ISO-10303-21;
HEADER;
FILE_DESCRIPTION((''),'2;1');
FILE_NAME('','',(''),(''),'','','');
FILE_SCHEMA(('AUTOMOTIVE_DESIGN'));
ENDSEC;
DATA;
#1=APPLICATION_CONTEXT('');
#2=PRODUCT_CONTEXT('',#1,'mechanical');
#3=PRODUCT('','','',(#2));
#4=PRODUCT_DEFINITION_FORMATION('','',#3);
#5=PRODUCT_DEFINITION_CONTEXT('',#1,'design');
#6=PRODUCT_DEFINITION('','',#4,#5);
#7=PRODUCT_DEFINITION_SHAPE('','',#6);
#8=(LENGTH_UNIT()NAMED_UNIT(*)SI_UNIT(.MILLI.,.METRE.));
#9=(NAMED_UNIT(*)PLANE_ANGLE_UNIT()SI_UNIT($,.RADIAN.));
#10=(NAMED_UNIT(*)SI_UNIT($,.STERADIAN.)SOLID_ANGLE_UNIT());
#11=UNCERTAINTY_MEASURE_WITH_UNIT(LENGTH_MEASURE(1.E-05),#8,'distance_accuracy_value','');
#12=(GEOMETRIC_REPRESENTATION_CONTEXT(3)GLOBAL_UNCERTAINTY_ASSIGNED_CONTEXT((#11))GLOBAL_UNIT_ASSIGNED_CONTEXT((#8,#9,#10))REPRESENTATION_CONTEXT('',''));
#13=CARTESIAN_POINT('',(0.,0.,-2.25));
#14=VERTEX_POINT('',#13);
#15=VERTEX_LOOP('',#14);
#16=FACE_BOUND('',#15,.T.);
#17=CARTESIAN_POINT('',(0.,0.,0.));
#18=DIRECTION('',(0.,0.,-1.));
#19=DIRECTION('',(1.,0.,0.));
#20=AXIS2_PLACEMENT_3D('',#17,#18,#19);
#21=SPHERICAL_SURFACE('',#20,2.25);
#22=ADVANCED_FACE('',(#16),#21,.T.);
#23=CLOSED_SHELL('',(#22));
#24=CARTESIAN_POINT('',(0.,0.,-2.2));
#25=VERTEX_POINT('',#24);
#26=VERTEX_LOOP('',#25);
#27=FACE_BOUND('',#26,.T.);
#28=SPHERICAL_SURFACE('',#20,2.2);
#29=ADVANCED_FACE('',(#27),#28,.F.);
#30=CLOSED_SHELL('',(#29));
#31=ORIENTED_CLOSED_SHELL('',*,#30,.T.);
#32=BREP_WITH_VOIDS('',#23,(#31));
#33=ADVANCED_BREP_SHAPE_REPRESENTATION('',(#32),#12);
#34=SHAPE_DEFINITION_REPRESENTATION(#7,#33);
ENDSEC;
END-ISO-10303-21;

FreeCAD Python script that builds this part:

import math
import FreeCAD as App
import Part
import Sketcher
from FreeCAD import Vector
Q = App.Units.Quantity

doc = App.newDocument("Part")
params = doc.addObject("Spreadsheet::Sheet", "Params")
for row, (alias, value) in enumerate([
    ("sketch1_radius", "2.2 mm"),
    ("sketch1_radius2", "2.25 mm"),
    ("revolution_angle", "360 deg"),
], start=1):
    params.set(f"A{row}", alias)
    params.set(f"B{row}", "=" + value)
    params.setAlias(f"B{row}", alias)

body = doc.addObject("PartDesign::Body", "Body")

sketch1 = body.newObject("Sketcher::SketchObject", "Sketch")
sketch1.AttachmentSupport = (doc.getObject("XZ_Plane"), [""])
sketch1.MapMode = "FlatFace"
sketch1.addGeometry([
    Part.ArcOfCircle(Part.Circle(Vector(0, 0, 0), Vector(0, 0, 1), 2.2), math.radians(90), math.radians(270)),
    Part.LineSegment(Vector(0, -2.2, 0), Vector(0, -2.25, 0)),
    Part.ArcOfCircle(Part.Circle(Vector(0, 0, 0), Vector(0, 0, 1), 2.25), math.radians(90), math.radians(270)),
    Part.LineSegment(Vector(0, 2.25, 0), Vector(0, 2.2, 0)),
], False)
sketch1.addConstraint([
    Sketcher.Constraint("Coincident", 0, 2, 1, 1),
    Sketcher.Constraint("Coincident", 1, 2, 2, 2),
    Sketcher.Constraint("Coincident", 2, 1, 3, 1),
    Sketcher.Constraint("Coincident", 3, 2, 0, 1),
    Sketcher.Constraint("Vertical", 1),
    Sketcher.Constraint("Vertical", 3),
    Sketcher.Constraint("Coincident", 0, 3, -1, 1),
    Sketcher.Constraint("Coincident", 2, 3, -1, 1),
    Sketcher.Constraint("PointOnObject", 0, 2, -2),
    Sketcher.Constraint("PointOnObject", 2, 1, -2),
    Sketcher.Constraint("Radius", 0, Q("2.2 mm")),
    Sketcher.Constraint("Radius", 2, Q("2.25 mm")),
])
sketch1.setExpression("Constraints[10]", "Params.sketch1_radius")
sketch1.setExpression("Constraints[11]", "Params.sketch1_radius2")
revolution = body.newObject("PartDesign::Revolution", "Revolution")
revolution.Profile = sketch1
revolution.ReferenceAxis = (sketch1, ["V_Axis"])
revolution.setExpression("Angle", "Params.revolution_angle")

doc.recompute()
